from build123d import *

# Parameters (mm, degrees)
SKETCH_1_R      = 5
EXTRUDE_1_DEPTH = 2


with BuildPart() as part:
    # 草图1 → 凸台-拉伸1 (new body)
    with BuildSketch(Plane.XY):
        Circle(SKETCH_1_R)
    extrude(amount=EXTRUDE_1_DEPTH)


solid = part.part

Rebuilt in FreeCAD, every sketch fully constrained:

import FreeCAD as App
import Part
import Sketcher
Q = App.Units.Quantity

doc = App.newDocument("Part")
body = doc.addObject("PartDesign::Body", "Body")

# Sketch on XY plane
sketch1 = doc.addObject("Sketcher::SketchObject", "Sketch")
body.addObject(sketch1)
sketch1.AttachmentSupport = (doc.XY_Plane, [""])
sketch1.MapMode = "FlatFace"
sketch1.addGeometry(Part.Circle(App.Vector(0, 0, 0), App.Vector(0, 0, 1), 5), False)
sketch1.addConstraint([
    Sketcher.Constraint("Coincident", 0, 3, -1, 1),
    Sketcher.Constraint("Diameter", 0, Q("10 mm")),
])
pad1 = doc.addObject("PartDesign::Pad", "Pad")
body.addObject(pad1)
pad1.Profile = sketch1
pad1.Length = 2

doc.recompute()
